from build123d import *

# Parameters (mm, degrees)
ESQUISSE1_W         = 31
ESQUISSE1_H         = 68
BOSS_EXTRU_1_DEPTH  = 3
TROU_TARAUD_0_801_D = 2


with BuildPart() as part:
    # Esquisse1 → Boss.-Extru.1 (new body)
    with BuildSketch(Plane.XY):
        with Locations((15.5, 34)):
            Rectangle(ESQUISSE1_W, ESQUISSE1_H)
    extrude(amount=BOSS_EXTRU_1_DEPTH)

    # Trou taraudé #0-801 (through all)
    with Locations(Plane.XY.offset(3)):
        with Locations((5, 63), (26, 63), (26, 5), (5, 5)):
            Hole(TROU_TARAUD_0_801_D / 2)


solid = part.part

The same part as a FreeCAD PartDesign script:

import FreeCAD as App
import Part
import Sketcher
from FreeCAD import Vector
Q = App.Units.Quantity

doc = App.newDocument("Part")
body = doc.addObject("PartDesign::Body", "Body")

sketch1 = doc.addObject("Sketcher::SketchObject", "Sketch")
body.addObject(sketch1)
sketch1.AttachmentSupport = (doc.XY_Plane, [""])
sketch1.MapMode = "FlatFace"
sketch1.addGeometry([
    Part.LineSegment(Vector(0, 68, 0), Vector(0, 0, 0)),
    Part.LineSegment(Vector(0, 0, 0), Vector(31, 0, 0)),
    Part.LineSegment(Vector(31, 0, 0), Vector(31, 68, 0)),
    Part.LineSegment(Vector(31, 68, 0), Vector(0, 68, 0)),
], False)
sketch1.addConstraint([
    Sketcher.Constraint("Coincident", 0, 2, 1, 1),
    Sketcher.Constraint("Coincident", 1, 2, 2, 1),
    Sketcher.Constraint("Coincident", 2, 2, 3, 1),
    Sketcher.Constraint("Coincident", 3, 2, 0, 1),
    Sketcher.Constraint("Vertical", 0),
    Sketcher.Constraint("Horizontal", 1),
    Sketcher.Constraint("Vertical", 2),
    Sketcher.Constraint("Horizontal", 3),
    Sketcher.Constraint("Coincident", 0, 2, -1, 1),
    Sketcher.Constraint("DistanceX", 1, 1, 1, 2, Q("31 mm")),
    Sketcher.Constraint("DistanceY", 0, 2, 0, 1, Q("68 mm")),
])
pad1 = doc.addObject("PartDesign::Pad", "Pad")
body.addObject(pad1)
pad1.Profile = sketch1
pad1.Length = 3

sketch2 = doc.addObject("Sketcher::SketchObject", "Sketch001")
body.addObject(sketch2)
sketch2.AttachmentSupport = (doc.XY_Plane, [""])
sketch2.MapMode = "FlatFace"
sketch2.AttachmentOffset = App.Placement(Vector(0, 0, 3), App.Rotation())
sketch2.addGeometry([
    Part.Circle(Vector(5, 63, 0), Vector(0, 0, 1), 1),
    Part.Circle(Vector(26, 63, 0), Vector(0, 0, 1), 1),
    Part.Circle(Vector(26, 5, 0), Vector(0, 0, 1), 1),
    Part.Circle(Vector(5, 5, 0), Vector(0, 0, 1), 1),
], False)
sketch2.addConstraint([
    Sketcher.Constraint("Equal", 0, 1),
    Sketcher.Constraint("Equal", 1, 2),
    Sketcher.Constraint("Equal", 2, 3),
    Sketcher.Constraint("Horizontal", 0, 3, 1, 3),
    Sketcher.Constraint("Horizontal", 2, 3, 3, 3),
    Sketcher.Constraint("Vertical", 1, 3, 2, 3),
    Sketcher.Constraint("Vertical", 0, 3, 3, 3),
    Sketcher.Constraint("Diameter", 0, Q("2 mm")),
    Sketcher.Constraint("DistanceX", -1, 1, 0, 3, Q("5 mm")),
    Sketcher.Constraint("DistanceY", -1, 1, 0, 3, Q("63 mm")),
    Sketcher.Constraint("DistanceX", -1, 1, 1, 3, Q("26 mm")),
    Sketcher.Constraint("DistanceY", -1, 1, 2, 3, Q("5 mm")),
])
doc.recompute()
hole = doc.addObject("PartDesign::Hole", "Hole")
body.addObject(hole)
hole.Profile = sketch2
hole.ThreadType = "None"
hole.Diameter = 2
hole.DepthType = "ThroughAll"

doc.recompute()
